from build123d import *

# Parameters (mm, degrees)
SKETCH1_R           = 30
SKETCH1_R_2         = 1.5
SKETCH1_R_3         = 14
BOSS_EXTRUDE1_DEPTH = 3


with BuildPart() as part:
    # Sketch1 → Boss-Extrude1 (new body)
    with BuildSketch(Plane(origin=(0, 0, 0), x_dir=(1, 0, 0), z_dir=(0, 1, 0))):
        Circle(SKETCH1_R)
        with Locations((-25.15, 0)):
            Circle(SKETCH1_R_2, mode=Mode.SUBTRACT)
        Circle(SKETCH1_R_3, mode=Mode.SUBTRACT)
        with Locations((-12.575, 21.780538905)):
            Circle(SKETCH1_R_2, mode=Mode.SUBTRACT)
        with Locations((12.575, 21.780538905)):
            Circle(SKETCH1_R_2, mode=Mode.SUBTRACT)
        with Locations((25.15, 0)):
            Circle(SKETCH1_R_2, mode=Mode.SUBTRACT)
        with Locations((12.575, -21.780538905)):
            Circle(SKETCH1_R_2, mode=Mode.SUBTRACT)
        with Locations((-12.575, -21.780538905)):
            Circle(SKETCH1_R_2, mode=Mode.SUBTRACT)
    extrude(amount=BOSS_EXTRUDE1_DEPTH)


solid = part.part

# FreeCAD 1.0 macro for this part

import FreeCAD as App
import Part
import Sketcher
from FreeCAD import Vector

doc = App.newDocument("Part")
params = doc.addObject("Spreadsheet::Sheet", "Params")
for row, (alias, value) in enumerate([
    ("sketch1_diameter", "60 mm"),
    ("sketch1_diameter2", "3 mm"),
    ("sketch1_diameter3", "28 mm"),
    ("pad1_length", "3 mm"),
], start=1):
    params.set(f"A{row}", alias)
    params.set(f"B{row}", "=" + value)
    params.setAlias(f"B{row}", alias)

body = doc.addObject("PartDesign::Body", "Body")

# Sketch on XZ plane
sketch1 = body.newObject("Sketcher::SketchObject", "Sketch")
sketch1.AttachmentSupport = (doc.getObject("XZ_Plane"), [""])
sketch1.MapMode = "FlatFace"
sketch1.addGeometry(Part.Circle(Vector(0, 0, 0), Vector(0, 0, 1), 30), False)
sketch1.addGeometry(Part.Circle(Vector(-12.6, 21.8, 0), Vector(0, 0, 1), 1.5), False)
sketch1.addGeometry(Part.Circle(Vector(12.6, 21.8, 0), Vector(0, 0, 1), 1.5), False)
sketch1.addGeometry(Part.Circle(Vector(-25.1, 0, 0), Vector(0, 0, 1), 1.5), False)
sketch1.addGeometry(Part.Circle(Vector(-12.6, -21.8, 0), Vector(0, 0, 1), 1.5), False)
sketch1.addGeometry(Part.Circle(Vector(0, 0, 0), Vector(0, 0, 1), 14), False)
sketch1.addGeometry(Part.Circle(Vector(25.1, 0, 0), Vector(0, 0, 1), 1.5), False)
sketch1.addGeometry(Part.Circle(Vector(12.6, -21.8, 0), Vector(0, 0, 1), 1.5), False)
sketch1.addConstraint(Sketcher.Constraint("Coincident", 0, 3, -1, 1))
sketch1.addConstraint(Sketcher.Constraint("Coincident", 5, 3, -1, 1))
sketch1.addConstraint(Sketcher.Constraint("Equal", 1, 2))
sketch1.addConstraint(Sketcher.Constraint("Equal", 2, 3))
sketch1.addConstraint(Sketcher.Constraint("Equal", 3, 4))
sketch1.addConstraint(Sketcher.Constraint("Equal", 4, 6))
sketch1.addConstraint(Sketcher.Constraint("Equal", 6, 7))
sketch1.addConstraint(Sketcher.Constraint("Symmetric", 2, 3, 4, 3, -1, 1))
sketch1.addConstraint(Sketcher.Constraint("Symmetric", 3, 3, 6, 3, -1, 1))
sketch1.addConstraint(Sketcher.Constraint("Symmetric", 1, 3, 7, 3, -1, 1))
sketch1.addConstraint(Sketcher.Constraint("Symmetric", 1, 3, 2, 3, -2))
sketch1.addConstraint(Sketcher.Constraint("PointOnObject", 3, 3, -1))
sketch1.addConstraint(Sketcher.Constraint("Diameter", 0, 60.0))
sketch1.addConstraint(Sketcher.Constraint("Diameter", 1, 3.0))
sketch1.addConstraint(Sketcher.Constraint("Diameter", 5, 28.0))
sketch1.addConstraint(Sketcher.Constraint("DistanceX", 3, 3, -1, 1, 25.15))
sketch1.addConstraint(Sketcher.Constraint("DistanceX", 1, 3, 2, 3, 25.15))
sketch1.addConstraint(Sketcher.Constraint("DistanceY", -1, 1, 1, 3, 21.780539))
sketch1.setExpression("Constraints[12]", "Params.sketch1_diameter")
sketch1.setExpression("Constraints[13]", "Params.sketch1_diameter2")
sketch1.setExpression("Constraints[14]", "Params.sketch1_diameter3")
pad1 = body.newObject("PartDesign::Pad", "Pad")
pad1.Profile = sketch1
pad1.setExpression("Length", "Params.pad1_length")
pad1.Reversed = True

doc.recompute()
